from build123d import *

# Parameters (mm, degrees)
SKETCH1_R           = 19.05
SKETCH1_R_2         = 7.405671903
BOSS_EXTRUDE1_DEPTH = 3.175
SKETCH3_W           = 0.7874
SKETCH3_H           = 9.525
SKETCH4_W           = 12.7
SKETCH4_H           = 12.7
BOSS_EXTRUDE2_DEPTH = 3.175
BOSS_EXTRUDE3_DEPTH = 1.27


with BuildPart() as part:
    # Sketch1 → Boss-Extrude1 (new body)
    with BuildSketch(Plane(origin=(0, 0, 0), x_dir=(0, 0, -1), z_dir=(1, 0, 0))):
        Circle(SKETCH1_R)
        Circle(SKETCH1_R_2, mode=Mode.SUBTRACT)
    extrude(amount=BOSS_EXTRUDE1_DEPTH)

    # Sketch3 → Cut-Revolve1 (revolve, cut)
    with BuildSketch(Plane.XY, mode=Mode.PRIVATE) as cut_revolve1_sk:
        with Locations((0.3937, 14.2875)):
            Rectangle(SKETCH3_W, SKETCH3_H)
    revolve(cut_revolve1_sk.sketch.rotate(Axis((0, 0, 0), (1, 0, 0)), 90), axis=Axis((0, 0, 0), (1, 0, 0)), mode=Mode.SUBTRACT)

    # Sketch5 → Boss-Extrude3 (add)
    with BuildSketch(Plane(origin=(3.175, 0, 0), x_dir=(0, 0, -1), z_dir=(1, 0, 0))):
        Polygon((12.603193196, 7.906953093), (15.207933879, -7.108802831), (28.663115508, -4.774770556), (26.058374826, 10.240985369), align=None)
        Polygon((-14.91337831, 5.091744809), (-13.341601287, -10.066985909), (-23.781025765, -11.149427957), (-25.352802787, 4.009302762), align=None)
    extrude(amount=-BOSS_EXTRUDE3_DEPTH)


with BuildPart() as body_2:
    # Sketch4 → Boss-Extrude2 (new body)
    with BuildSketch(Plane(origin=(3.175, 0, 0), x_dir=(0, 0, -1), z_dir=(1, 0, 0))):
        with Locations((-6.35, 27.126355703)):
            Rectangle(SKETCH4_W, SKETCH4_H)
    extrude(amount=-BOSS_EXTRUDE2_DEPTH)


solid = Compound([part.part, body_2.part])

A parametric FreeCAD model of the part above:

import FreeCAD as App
import Part
import Sketcher
Q = App.Units.Quantity

doc = App.newDocument("Part")
body = doc.addObject("PartDesign::Body", "Body")

sketch1 = doc.addObject("Sketcher::SketchObject", "Sketch")
body.addObject(sketch1)
sketch1.AttachmentSupport = (doc.YZ_Plane, [""])
sketch1.MapMode = "FlatFace"
sketch1.addGeometry(Part.Circle(App.Vector(0, 0, 0), App.Vector(0, 0, 1), 19.05), False)
sketch1.addGeometry(Part.Circle(App.Vector(0, 0, 0), App.Vector(0, 0, 1), 7.405672), False)
sketch1.addConstraint(Sketcher.Constraint("Coincident", 0, 3, -1, 1))
sketch1.addConstraint(Sketcher.Constraint("Coincident", 1, 3, -1, 1))
sketch1.addConstraint(Sketcher.Constraint("Diameter", 0, Q("1.5 in")))
sketch1.addConstraint(Sketcher.Constraint("Diameter", 1, 14.811344))
pad1 = doc.addObject("PartDesign::Pad", "Pad")
body.addObject(pad1)
pad1.Profile = sketch1
pad1.Length = Q("0.125 in")

sketch2 = doc.addObject("Sketcher::SketchObject", "Sketch001")
body.addObject(sketch2)
sketch2.AttachmentSupport = (doc.XY_Plane, [""])
sketch2.MapMode = "FlatFace"
sketch2.addGeometry(Part.LineSegment(App.Vector(0, 19.05, 0), App.Vector(0, 9.525, 0)), False)
sketch2.addGeometry(Part.LineSegment(App.Vector(0, 9.525, 0), App.Vector(0.7874, 9.525, 0)), False)
sketch2.addGeometry(Part.LineSegment(App.Vector(0.7874, 9.525, 0), App.Vector(0.7874, 19.05, 0)), False)
sketch2.addGeometry(Part.LineSegment(App.Vector(0.7874, 19.05, 0), App.Vector(0, 19.05, 0)), False)
sketch2.addConstraint(Sketcher.Constraint("Coincident", 0, 2, 1, 1))
sketch2.addConstraint(Sketcher.Constraint("Coincident", 1, 2, 2, 1))
sketch2.addConstraint(Sketcher.Constraint("Coincident", 2, 2, 3, 1))
sketch2.addConstraint(Sketcher.Constraint("Coincident", 3, 2, 0, 1))
sketch2.addConstraint(Sketcher.Constraint("Vertical", 0))
sketch2.addConstraint(Sketcher.Constraint("Horizontal", 1))
sketch2.addConstraint(Sketcher.Constraint("Vertical", 2))
sketch2.addConstraint(Sketcher.Constraint("Horizontal", 3))
sketch2.addConstraint(Sketcher.Constraint("PointOnObject", 0, 2, -2))
sketch2.addConstraint(Sketcher.Constraint("DistanceX", 1, 1, 1, 2, Q("0.031 in")))
sketch2.addConstraint(Sketcher.Constraint("DistanceY", 0, 2, 0, 1, Q("0.375 in")))
sketch2.addConstraint(Sketcher.Constraint("DistanceY", -1, 1, 2, 2, Q("0.75 in")))
groove = doc.addObject("PartDesign::Groove", "Groove")
body.addObject(groove)
groove.Profile = sketch2
groove.ReferenceAxis = (sketch2, ["H_Axis"])
groove.Angle = 360

sketch3 = doc.addObject("Sketcher::SketchObject", "Sketch002")
body.addObject(sketch3)
sketch3.AttachmentSupport = (doc.YZ_Plane, [""])
sketch3.MapMode = "FlatFace"
sketch3.AttachmentOffset = App.Placement(App.Vector(0, 0, 0.125 * 25.4), App.Rotation())
sketch3.addGeometry(Part.LineSegment(App.Vector(7.906953, -12.603193, 0), App.Vector(-7.108803, -15.207934, 0)), False)
sketch3.addGeometry(Part.LineSegment(App.Vector(-7.108803, -15.207934, 0), App.Vector(-4.774771, -28.663116, 0)), False)
sketch3.addGeometry(Part.LineSegment(App.Vector(-4.774771, -28.663116, 0), App.Vector(10.240985, -26.058375, 0)), False)
sketch3.addGeometry(Part.LineSegment(App.Vector(10.240985, -26.058375, 0), App.Vector(7.906953, -12.603193, 0)), False)
sketch3.addGeometry(Part.LineSegment(App.Vector(-10.066986, 13.341601, 0), App.Vector(5.091745, 14.913378, 0)), False)
sketch3.addGeometry(Part.LineSegment(App.Vector(5.091745, 14.913378, 0), App.Vector(4.009303, 25.352803, 0)), False)
sketch3.addGeometry(Part.LineSegment(App.Vector(4.009303, 25.352803, 0), App.Vector(-11.149428, 23.781026, 0)), False)
sketch3.addGeometry(Part.LineSegment(App.Vector(-11.149428, 23.781026, 0), App.Vector(-10.066986, 13.341601, 0)), False)
sketch3.addConstraint(Sketcher.Constraint("Coincident", 0, 2, 1, 1))
sketch3.addConstraint(Sketcher.Constraint("Coincident", 1, 2, 2, 1))
sketch3.addConstraint(Sketcher.Constraint("Coincident", 2, 2, 3, 1))
sketch3.addConstraint(Sketcher.Constraint("Coincident", 3, 2, 0, 1))
sketch3.addConstraint(Sketcher.Constraint("Coincident", 4, 2, 5, 1))
sketch3.addConstraint(Sketcher.Constraint("Coincident", 5, 2, 6, 1))
sketch3.addConstraint(Sketcher.Constraint("Coincident", 6, 2, 7, 1))
sketch3.addConstraint(Sketcher.Constraint("Coincident", 7, 2, 4, 1))
sketch3.addConstraint(Sketcher.Constraint("Perpendicular", 0, 1))
sketch3.addConstraint(Sketcher.Constraint("Perpendicular", 1, 2))
sketch3.addConstraint(Sketcher.Constraint("Perpendicular", 2, 3))
sketch3.addConstraint(Sketcher.Constraint("Perpendicular", 4, 5))
sketch3.addConstraint(Sketcher.Constraint("Perpendicular", 5, 6))
sketch3.addConstraint(Sketcher.Constraint("Perpendicular", 6, 7))
sketch3.addConstraint(Sketcher.Constraint("Equal", 2, 4))
sketch3.addConstraint(Sketcher.Constraint("Distance", 0, Q("0.6 in")))
sketch3.addConstraint(Sketcher.Constraint("DistanceY", -1, 1, 7, 2, 13.341601))
sketch3.addConstraint(Sketcher.Constraint("DistanceY", 7, 2, 5, 2, 12.011202))
sketch3.addConstraint(Sketcher.Constraint("Distance", 1, 13.65612))
sketch3.addConstraint(Sketcher.Constraint("DistanceX", 1, 2, -1, 1, 4.774771))
sketch3.addConstraint(Sketcher.Constraint("DistanceY", -1, 1, 4, 2, 14.913378))
sketch3.addConstraint(Sketcher.Constraint("DistanceY", 1, 2, 0, 2, 13.455182))
sketch3.addConstraint(Sketcher.Constraint("DistanceX", 4, 2, 3, 2, 2.815208))
sketch3.addConstraint(Sketcher.Constraint("DistanceY", 3, 2, 4, 2, 27.516572))
pad2 = doc.addObject("PartDesign::Pad", "Pad001")
body.addObject(pad2)
pad2.Profile = sketch3
pad2.Length = Q("0.05 in")
pad2.Reversed = True
body2 = doc.addObject("PartDesign::Body", "Body001")

sketch4 = doc.addObject("Sketcher::SketchObject", "Sketch003")
body2.addObject(sketch4)
sketch4.AttachmentSupport = (doc.getObject("YZ_Plane001"), [""])
sketch4.MapMode = "FlatFace"
sketch4.AttachmentOffset = App.Placement(App.Vector(0, 0, 0.125 * 25.4), App.Rotation())
sketch4.addGeometry(Part.LineSegment(App.Vector(33.476356, 12.7, 0), App.Vector(20.776356, 12.7, 0)), False)
sketch4.addGeometry(Part.LineSegment(App.Vector(20.776356, 12.7, 0), App.Vector(20.776356, 0, 0)), False)
sketch4.addGeometry(Part.LineSegment(App.Vector(20.776356, 0, 0), App.Vector(33.476356, 0, 0)), False)
sketch4.addGeometry(Part.LineSegment(App.Vector(33.476356, 0, 0), App.Vector(33.476356, 12.7, 0)), False)
sketch4.addConstraint(Sketcher.Constraint("Coincident", 0, 2, 1, 1))
sketch4.addConstraint(Sketcher.Constraint("Coincident", 1, 2, 2, 1))
sketch4.addConstraint(Sketcher.Constraint("Coincident", 2, 2, 3, 1))
sketch4.addConstraint(Sketcher.Constraint("Coincident", 3, 2, 0, 1))
sketch4.addConstraint(Sketcher.Constraint("Horizontal", 0))
sketch4.addConstraint(Sketcher.Constraint("Vertical", 1))
sketch4.addConstraint(Sketcher.Constraint("Horizontal", 2))
sketch4.addConstraint(Sketcher.Constraint("Vertical", 3))
sketch4.addConstraint(Sketcher.Constraint("PointOnObject", 1, 2, -1))
sketch4.addConstraint(Sketcher.Constraint("Equal", 2, 1))
sketch4.addConstraint(Sketcher.Constraint("DistanceX", 0, 2, 0, 1, Q("0.5 in")))
sketch4.addConstraint(Sketcher.Constraint("DistanceX", -1, 1, 0, 2, 20.776356))
pad3 = doc.addObject("PartDesign::Pad", "Pad002")
body2.addObject(pad3)
pad3.Profile = sketch4
pad3.Length = Q("0.125 in")
pad3.Reversed = True

doc.recompute()
